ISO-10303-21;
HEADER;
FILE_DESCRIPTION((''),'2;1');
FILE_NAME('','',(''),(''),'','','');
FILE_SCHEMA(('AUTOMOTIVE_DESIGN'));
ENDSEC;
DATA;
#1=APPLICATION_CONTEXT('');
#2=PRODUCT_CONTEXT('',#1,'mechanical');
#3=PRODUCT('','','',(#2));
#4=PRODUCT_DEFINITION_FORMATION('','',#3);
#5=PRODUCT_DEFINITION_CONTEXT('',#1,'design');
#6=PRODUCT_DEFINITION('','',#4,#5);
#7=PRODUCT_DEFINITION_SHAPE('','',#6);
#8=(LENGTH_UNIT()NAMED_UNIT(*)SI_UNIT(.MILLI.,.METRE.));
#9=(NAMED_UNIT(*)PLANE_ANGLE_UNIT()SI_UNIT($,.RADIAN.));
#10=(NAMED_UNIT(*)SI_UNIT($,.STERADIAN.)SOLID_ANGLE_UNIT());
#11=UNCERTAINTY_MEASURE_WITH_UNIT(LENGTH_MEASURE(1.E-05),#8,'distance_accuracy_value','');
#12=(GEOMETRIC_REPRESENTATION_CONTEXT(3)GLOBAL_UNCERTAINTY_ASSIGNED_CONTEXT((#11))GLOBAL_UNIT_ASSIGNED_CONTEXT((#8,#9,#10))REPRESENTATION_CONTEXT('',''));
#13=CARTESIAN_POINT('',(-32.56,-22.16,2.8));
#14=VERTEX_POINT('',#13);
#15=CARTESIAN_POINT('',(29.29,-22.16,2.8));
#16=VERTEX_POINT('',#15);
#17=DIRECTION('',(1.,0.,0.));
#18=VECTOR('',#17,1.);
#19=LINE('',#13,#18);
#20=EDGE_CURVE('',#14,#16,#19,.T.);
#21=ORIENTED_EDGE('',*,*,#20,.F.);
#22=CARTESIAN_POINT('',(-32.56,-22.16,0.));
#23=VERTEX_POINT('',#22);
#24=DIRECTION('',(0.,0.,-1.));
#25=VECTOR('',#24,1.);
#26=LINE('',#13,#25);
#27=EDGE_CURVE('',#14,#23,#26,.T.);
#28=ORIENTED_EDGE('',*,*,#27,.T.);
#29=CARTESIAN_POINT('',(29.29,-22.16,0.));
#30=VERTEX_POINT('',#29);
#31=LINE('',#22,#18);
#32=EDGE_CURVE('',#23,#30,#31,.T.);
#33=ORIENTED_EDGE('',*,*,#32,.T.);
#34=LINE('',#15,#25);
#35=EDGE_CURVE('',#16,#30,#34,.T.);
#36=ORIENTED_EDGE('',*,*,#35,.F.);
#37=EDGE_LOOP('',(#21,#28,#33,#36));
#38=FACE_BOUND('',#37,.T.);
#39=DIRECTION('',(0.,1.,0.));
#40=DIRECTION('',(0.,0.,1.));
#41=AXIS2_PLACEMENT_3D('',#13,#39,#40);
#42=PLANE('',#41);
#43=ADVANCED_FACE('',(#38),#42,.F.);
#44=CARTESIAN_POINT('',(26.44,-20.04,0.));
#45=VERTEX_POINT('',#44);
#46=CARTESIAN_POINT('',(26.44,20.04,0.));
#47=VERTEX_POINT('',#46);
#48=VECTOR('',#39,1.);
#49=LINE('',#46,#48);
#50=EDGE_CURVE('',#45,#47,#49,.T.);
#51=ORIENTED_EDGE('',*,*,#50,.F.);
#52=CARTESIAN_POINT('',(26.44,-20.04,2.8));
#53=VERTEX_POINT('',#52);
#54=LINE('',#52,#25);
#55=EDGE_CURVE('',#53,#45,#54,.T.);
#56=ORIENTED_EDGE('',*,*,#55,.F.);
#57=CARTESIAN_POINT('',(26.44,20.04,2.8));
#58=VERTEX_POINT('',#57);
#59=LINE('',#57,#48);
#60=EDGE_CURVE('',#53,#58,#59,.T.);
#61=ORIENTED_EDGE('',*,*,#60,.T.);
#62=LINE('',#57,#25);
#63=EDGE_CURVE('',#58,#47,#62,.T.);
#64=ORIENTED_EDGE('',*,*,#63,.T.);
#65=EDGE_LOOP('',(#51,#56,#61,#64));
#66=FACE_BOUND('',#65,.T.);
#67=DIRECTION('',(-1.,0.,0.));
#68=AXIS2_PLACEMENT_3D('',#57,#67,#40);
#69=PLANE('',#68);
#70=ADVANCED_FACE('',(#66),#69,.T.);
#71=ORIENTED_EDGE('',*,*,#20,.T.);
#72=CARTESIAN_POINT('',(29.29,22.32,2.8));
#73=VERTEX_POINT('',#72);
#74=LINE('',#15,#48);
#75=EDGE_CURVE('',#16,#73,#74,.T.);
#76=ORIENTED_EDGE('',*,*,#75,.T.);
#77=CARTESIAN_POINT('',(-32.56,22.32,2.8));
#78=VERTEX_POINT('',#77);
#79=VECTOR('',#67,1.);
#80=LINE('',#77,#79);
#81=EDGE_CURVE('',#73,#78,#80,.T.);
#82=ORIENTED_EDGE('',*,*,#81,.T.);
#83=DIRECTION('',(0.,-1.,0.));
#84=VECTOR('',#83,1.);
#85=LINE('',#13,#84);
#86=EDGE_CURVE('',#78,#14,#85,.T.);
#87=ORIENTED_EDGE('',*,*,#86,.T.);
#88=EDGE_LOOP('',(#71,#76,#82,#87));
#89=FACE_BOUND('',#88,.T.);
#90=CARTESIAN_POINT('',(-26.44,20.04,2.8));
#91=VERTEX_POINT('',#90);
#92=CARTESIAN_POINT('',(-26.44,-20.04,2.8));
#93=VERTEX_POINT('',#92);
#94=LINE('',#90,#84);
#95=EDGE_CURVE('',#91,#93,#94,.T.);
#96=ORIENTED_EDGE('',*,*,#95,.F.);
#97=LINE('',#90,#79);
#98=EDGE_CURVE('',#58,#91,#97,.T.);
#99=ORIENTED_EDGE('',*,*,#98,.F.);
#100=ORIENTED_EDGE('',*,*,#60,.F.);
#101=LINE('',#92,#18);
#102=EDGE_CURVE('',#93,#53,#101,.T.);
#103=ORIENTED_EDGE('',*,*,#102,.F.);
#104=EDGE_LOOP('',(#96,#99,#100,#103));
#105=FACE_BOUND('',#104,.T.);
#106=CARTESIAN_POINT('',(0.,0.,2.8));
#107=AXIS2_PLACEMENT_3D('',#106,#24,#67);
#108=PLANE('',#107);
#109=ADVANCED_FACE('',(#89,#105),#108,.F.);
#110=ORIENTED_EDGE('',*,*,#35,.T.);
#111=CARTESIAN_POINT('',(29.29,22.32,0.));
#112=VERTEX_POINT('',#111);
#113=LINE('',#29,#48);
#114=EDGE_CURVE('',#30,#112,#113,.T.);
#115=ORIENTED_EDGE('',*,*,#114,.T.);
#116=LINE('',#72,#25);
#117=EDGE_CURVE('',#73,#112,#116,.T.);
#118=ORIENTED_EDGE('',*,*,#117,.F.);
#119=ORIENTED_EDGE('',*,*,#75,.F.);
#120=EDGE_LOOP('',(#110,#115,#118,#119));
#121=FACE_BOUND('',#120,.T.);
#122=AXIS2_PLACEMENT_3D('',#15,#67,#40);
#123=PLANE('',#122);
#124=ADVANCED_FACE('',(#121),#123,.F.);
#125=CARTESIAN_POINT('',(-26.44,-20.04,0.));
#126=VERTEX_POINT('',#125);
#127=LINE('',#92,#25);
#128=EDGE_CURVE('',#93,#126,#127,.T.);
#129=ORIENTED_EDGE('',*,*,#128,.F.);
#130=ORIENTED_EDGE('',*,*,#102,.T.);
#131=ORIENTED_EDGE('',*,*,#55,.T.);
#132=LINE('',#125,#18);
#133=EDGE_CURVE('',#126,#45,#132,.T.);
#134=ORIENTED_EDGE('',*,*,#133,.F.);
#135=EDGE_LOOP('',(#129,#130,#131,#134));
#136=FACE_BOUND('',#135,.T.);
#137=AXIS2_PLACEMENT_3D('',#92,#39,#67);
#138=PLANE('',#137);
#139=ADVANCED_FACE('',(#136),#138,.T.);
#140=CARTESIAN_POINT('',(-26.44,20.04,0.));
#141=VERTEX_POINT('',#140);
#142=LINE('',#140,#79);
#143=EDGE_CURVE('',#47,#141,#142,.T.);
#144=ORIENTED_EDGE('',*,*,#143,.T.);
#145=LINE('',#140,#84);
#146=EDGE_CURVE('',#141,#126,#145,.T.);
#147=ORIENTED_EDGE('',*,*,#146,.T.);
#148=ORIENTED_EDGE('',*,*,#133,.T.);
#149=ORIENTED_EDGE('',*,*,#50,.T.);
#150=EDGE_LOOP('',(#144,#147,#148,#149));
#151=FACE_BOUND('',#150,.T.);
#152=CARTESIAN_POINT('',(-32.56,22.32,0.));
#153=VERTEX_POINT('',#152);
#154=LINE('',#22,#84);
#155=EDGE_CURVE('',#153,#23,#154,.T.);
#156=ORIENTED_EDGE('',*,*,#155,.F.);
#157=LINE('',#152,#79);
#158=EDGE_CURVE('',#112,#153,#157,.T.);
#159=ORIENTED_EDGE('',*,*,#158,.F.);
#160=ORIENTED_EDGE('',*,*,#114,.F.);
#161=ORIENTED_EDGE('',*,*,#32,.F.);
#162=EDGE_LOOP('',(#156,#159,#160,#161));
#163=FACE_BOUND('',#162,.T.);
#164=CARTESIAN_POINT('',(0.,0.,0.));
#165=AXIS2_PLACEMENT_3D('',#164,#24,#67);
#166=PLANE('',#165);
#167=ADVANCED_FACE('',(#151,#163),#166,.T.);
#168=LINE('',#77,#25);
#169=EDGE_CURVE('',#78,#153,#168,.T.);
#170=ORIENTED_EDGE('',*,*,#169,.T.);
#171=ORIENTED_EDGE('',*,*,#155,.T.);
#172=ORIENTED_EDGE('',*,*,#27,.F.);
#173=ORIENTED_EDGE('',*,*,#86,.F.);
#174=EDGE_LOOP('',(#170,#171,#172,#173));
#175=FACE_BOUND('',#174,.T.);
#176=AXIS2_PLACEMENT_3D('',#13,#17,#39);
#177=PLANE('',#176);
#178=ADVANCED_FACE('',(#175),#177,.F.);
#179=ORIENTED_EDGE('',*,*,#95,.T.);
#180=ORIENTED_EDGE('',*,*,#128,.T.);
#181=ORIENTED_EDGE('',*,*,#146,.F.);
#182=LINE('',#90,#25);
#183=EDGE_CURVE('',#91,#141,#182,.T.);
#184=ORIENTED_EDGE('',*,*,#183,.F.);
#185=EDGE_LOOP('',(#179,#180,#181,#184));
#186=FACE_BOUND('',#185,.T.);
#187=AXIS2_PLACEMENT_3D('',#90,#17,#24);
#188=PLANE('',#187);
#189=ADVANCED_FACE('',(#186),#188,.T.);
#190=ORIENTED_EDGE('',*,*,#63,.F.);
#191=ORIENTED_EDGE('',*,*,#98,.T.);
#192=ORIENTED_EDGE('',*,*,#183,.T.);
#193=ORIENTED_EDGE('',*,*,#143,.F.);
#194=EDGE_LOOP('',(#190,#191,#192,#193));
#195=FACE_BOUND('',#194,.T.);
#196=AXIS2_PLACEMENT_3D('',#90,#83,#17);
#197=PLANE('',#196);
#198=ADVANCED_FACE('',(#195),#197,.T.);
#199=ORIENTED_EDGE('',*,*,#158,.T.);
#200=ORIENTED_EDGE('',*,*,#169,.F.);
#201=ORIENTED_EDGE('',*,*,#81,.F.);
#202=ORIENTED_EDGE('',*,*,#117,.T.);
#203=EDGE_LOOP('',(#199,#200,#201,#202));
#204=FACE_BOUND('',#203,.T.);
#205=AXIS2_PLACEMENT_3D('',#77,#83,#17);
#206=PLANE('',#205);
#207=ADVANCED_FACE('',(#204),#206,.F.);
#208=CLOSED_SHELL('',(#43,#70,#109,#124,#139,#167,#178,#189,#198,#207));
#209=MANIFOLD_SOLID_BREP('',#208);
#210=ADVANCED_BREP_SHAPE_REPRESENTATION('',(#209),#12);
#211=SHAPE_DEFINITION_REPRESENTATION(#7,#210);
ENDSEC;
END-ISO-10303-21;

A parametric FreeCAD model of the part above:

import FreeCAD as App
import Part
import Sketcher


def add_polygon(sketch, points):
    """Adds a closed chain of lines whose ends are joined by coincident constraints."""
    first, n = sketch.GeometryCount, len(points)
    for a, b in zip(points, points[1:] + points[:1]):
        sketch.addGeometry(Part.LineSegment(App.Vector(*a, 0), App.Vector(*b, 0)), False)
    for i in range(n):
        sketch.addConstraint(Sketcher.Constraint("Coincident", first + i, 2, first + (i + 1) % n, 1))

doc = App.newDocument("Part")
body = doc.addObject("PartDesign::Body", "Body")

# Sketch on XY plane
sketch1 = body.newObject("Sketcher::SketchObject", "Sketch")
sketch1.AttachmentSupport = (doc.getObject("XY_Plane"), [""])
sketch1.MapMode = "FlatFace"
add_polygon(sketch1, [(-33, 22), (-33, -22), (29, -22), (29, 22)])  # lines 0-3
add_polygon(sketch1, [(26, -20), (-26, -20), (-26, 20), (26, 20)])  # lines 4-7
sketch1.addConstraint([
    Sketcher.Constraint("Vertical", 0),
    Sketcher.Constraint("Horizontal", 1),
    Sketcher.Constraint("Vertical", 2),
    Sketcher.Constraint("Horizontal", 3),
    Sketcher.Constraint("Horizontal", 4),
    Sketcher.Constraint("Vertical", 5),
    Sketcher.Constraint("Horizontal", 6),
    Sketcher.Constraint("Vertical", 7),
    Sketcher.Constraint("Symmetric", 4, 2, 6, 2, -1, 1),
    Sketcher.Constraint("DistanceX", 3, 2, 6, 2, 59.0),
    Sketcher.Constraint("DistanceX", 1, 1, 1, 2, 61.85),
    Sketcher.Constraint("DistanceX", 4, 2, 4, 1, 52.88),
    Sketcher.Constraint("DistanceY", 0, 2, 0, 1, 44.48),
    Sketcher.Constraint("DistanceY", 5, 1, 5, 2, 40.08),
    Sketcher.Constraint("DistanceY", 0, 2, 5, 2, 42.2),
])
pad1 = body.newObject("PartDesign::Pad", "Pad")
pad1.Profile = sketch1
pad1.Length = 2.8

doc.recompute()
